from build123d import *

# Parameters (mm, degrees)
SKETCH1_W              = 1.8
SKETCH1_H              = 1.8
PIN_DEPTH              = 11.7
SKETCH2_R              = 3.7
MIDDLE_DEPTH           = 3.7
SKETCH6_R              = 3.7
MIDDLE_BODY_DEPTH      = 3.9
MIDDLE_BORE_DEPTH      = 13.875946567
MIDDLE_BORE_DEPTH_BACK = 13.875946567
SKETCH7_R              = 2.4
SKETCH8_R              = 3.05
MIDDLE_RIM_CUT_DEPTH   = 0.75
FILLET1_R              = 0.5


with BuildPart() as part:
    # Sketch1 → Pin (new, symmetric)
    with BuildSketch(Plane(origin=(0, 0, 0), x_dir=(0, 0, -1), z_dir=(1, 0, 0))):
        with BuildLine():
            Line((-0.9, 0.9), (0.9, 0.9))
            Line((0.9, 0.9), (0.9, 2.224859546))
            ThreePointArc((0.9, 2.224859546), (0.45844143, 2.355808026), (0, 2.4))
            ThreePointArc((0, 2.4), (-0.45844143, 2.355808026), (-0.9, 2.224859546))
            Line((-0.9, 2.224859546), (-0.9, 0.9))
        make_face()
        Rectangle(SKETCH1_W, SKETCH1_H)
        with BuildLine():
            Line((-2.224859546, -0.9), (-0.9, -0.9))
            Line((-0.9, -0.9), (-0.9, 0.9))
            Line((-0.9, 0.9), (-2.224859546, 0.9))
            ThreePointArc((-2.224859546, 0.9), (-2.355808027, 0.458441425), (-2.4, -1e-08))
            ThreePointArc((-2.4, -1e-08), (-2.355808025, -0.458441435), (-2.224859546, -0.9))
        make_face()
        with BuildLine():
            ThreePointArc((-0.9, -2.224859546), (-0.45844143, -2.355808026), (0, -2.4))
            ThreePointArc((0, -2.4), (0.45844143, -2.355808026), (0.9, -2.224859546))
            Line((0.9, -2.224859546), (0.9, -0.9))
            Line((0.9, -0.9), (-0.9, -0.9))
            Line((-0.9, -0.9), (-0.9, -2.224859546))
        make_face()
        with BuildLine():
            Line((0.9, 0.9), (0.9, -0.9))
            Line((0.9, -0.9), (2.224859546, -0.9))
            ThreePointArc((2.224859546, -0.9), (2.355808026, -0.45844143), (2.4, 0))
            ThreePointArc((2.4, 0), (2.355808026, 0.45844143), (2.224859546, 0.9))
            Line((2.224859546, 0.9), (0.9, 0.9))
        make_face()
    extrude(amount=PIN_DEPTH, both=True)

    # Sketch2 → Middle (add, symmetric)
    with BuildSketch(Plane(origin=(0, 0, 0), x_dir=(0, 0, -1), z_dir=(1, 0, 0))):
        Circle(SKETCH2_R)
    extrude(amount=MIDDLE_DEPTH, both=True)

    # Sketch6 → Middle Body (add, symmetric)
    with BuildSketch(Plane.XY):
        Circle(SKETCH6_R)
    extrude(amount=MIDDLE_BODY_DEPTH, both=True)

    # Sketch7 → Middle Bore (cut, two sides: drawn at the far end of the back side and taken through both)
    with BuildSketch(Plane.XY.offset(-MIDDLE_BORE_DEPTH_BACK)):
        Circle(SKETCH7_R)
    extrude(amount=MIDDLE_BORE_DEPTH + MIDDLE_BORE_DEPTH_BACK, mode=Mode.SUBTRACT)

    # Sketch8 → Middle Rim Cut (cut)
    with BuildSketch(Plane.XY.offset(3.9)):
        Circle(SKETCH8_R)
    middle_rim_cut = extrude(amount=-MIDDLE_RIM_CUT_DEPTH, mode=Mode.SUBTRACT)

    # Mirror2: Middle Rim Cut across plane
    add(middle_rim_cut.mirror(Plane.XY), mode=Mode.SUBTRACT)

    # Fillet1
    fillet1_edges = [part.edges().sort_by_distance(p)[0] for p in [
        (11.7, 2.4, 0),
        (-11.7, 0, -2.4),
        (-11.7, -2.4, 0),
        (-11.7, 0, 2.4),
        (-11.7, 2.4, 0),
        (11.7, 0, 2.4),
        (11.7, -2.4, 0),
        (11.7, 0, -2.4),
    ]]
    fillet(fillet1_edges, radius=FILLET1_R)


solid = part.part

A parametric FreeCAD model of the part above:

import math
import FreeCAD as App
import Part
import Sketcher

V = App.Vector
Q = App.Units.Quantity


def edges_at(feature, points):
    """Names of the edges that pass closest to the given points."""
    edges = feature.Shape.Edges
    near = lambda p: min(range(len(edges)), key=lambda i: edges[i].distToShape(Part.Vertex(*p))[0])
    return sorted({f"Edge{near(p) + 1}" for p in points})

doc = App.newDocument("Part")
body = doc.addObject("PartDesign::Body", "Body")

sketch1 = body.newObject("Sketcher::SketchObject", "Sketch")
sketch1.AttachmentSupport = (doc.getObject("YZ_Plane"), [""])
sketch1.MapMode = "FlatFace"
sketch1.addGeometry([
    Part.ArcOfCircle(Part.Circle(V(0, 0, 0), V(0, 0, 1), 2.4), math.radians(-22), math.radians(0)),
    Part.ArcOfCircle(Part.Circle(V(0, 0, 0), V(0, 0, 1), 2.4), math.radians(0), math.radians(22)),
    Part.LineSegment(V(2.2, 0.9, 0), V(0.9, 0.9, 0)),
    Part.LineSegment(V(0.9, 0.9, 0), V(0.9, 2.2, 0)),
    Part.ArcOfCircle(Part.Circle(V(0, 0, 0), V(0, 0, 1), 2.4), math.radians(68), math.radians(90)),
    Part.ArcOfCircle(Part.Circle(V(0, 0, 0), V(0, 0, 1), 2.4), math.radians(90), math.radians(112)),
    Part.LineSegment(V(-0.9, 2.2, 0), V(-0.9, 0.9, 0)),
    Part.LineSegment(V(-0.9, 0.9, 0), V(-2.2, 0.9, 0)),
    Part.ArcOfCircle(Part.Circle(V(0, 0, 0), V(0, 0, 1), 2.4), math.radians(158), math.radians(180)),
    Part.ArcOfCircle(Part.Circle(V(0, 0, 0), V(0, 0, 1), 2.4), math.radians(180), math.radians(202)),
    Part.LineSegment(V(-2.2, -0.9, 0), V(-0.9, -0.9, 0)),
    Part.LineSegment(V(-0.9, -0.9, 0), V(-0.9, -2.2, 0)),
    Part.ArcOfCircle(Part.Circle(V(0, 0, 0), V(0, 0, 1), 2.4), math.radians(-112), math.radians(-90)),
    Part.ArcOfCircle(Part.Circle(V(0, 0, 0), V(0, 0, 1), 2.4), math.radians(-90), math.radians(-68)),
    Part.LineSegment(V(0.9, -2.2, 0), V(0.9, -0.9, 0)),
    Part.LineSegment(V(0.9, -0.9, 0), V(2.2, -0.9, 0)),
], False)
sketch1.addConstraint([
    Sketcher.Constraint("Tangent", 0, 2, 1, 1),
    Sketcher.Constraint("Coincident", 1, 2, 2, 1),
    Sketcher.Constraint("Coincident", 2, 2, 3, 1),
    Sketcher.Constraint("Coincident", 3, 2, 4, 1),
    Sketcher.Constraint("Tangent", 4, 2, 5, 1),
    Sketcher.Constraint("Coincident", 5, 2, 6, 1),
    Sketcher.Constraint("Coincident", 6, 2, 7, 1),
    Sketcher.Constraint("Coincident", 7, 2, 8, 1),
    Sketcher.Constraint("Tangent", 8, 2, 9, 1),
    Sketcher.Constraint("Coincident", 9, 2, 10, 1),
    Sketcher.Constraint("Coincident", 10, 2, 11, 1),
    Sketcher.Constraint("Coincident", 11, 2, 12, 1),
    Sketcher.Constraint("Tangent", 12, 2, 13, 1),
    Sketcher.Constraint("Coincident", 13, 2, 14, 1),
    Sketcher.Constraint("Coincident", 14, 2, 15, 1),
    Sketcher.Constraint("Coincident", 15, 2, 0, 1),
    Sketcher.Constraint("Horizontal", 2),
    Sketcher.Constraint("Vertical", 3),
    Sketcher.Constraint("Vertical", 6),
    Sketcher.Constraint("Horizontal", 7),
    Sketcher.Constraint("Horizontal", 10),
    Sketcher.Constraint("Vertical", 11),
    Sketcher.Constraint("Vertical", 14),
    Sketcher.Constraint("Horizontal", 15),
    Sketcher.Constraint("Coincident", 0, 3, -1, 1),
    Sketcher.Constraint("Coincident", 4, 3, -1, 1),
    Sketcher.Constraint("Coincident", 8, 3, -1, 1),
    Sketcher.Constraint("Coincident", 12, 3, -1, 1),
    Sketcher.Constraint("Equal", 0, 1),
    Sketcher.Constraint("Equal", 1, 4),
    Sketcher.Constraint("Equal", 4, 5),
    Sketcher.Constraint("Equal", 5, 8),
    Sketcher.Constraint("Equal", 8, 9),
    Sketcher.Constraint("Equal", 9, 12),
    Sketcher.Constraint("Equal", 12, 13),
    Sketcher.Constraint("Symmetric", 2, 2, 10, 2, -1, 1),
    Sketcher.Constraint("Symmetric", 6, 2, 14, 2, -1, 1),
    Sketcher.Constraint("Symmetric", 2, 2, 6, 2, -2),
    Sketcher.Constraint("PointOnObject", 0, 2, -1),
    Sketcher.Constraint("PointOnObject", 4, 2, -2),
    Sketcher.Constraint("PointOnObject", 8, 2, -1),
    Sketcher.Constraint("PointOnObject", 12, 2, -2),
    Sketcher.Constraint("Equal", 15, 3),
    Sketcher.Constraint("Radius", 0, Q("2.4 mm")),
    Sketcher.Constraint("DistanceY", -1, 1, 1, 2, Q("0.9 mm")),
])
pad1 = body.newObject("PartDesign::Pad", "Pad")
pad1.Profile = sketch1
pad1.Length = 23.4
pad1.Midplane = True

sketch2 = body.newObject("Sketcher::SketchObject", "Sketch001")
sketch2.AttachmentSupport = (doc.getObject("YZ_Plane"), [""])
sketch2.MapMode = "FlatFace"
sketch2.addGeometry(Part.Circle(V(0, 0, 0), V(0, 0, 1), 3.7), False)
sketch2.addConstraint([
    Sketcher.Constraint("Coincident", 0, 3, -1, 1),
    Sketcher.Constraint("Diameter", 0, Q("7.4 mm")),
])
pad2 = body.newObject("PartDesign::Pad", "Pad001")
pad2.Profile = sketch2
pad2.Length = 7.4
pad2.Midplane = True

sketch3 = body.newObject("Sketcher::SketchObject", "Sketch002")
sketch3.AttachmentSupport = (doc.getObject("XY_Plane"), [""])
sketch3.MapMode = "FlatFace"
sketch3.addGeometry(Part.Circle(V(0, 0, 0), V(0, 0, 1), 3.7), False)
sketch3.addConstraint([
    Sketcher.Constraint("Coincident", 0, 3, -1, 1),
    Sketcher.Constraint("Diameter", 0, Q("7.4 mm")),
])
pad3 = body.newObject("PartDesign::Pad", "Pad002")
pad3.Profile = sketch3
pad3.Length = 7.8
pad3.Midplane = True

sketch4 = body.newObject("Sketcher::SketchObject", "Sketch003")
sketch4.AttachmentSupport = (doc.getObject("XY_Plane"), [""])
sketch4.MapMode = "FlatFace"
sketch4.addGeometry(Part.Circle(V(0, 0, 0), V(0, 0, 1), 2.4), False)
sketch4.addConstraint([
    Sketcher.Constraint("Coincident", 0, 3, -1, 1),
    Sketcher.Constraint("Diameter", 0, Q("4.8 mm")),
])
pocket1 = body.newObject("PartDesign::Pocket", "Pocket")
pocket1.Profile = sketch4
pocket1.Type = "ThroughAll"
pocket1.Midplane = True

sketch5 = body.newObject("Sketcher::SketchObject", "Sketch004")
sketch5.AttachmentSupport = (doc.getObject("XY_Plane"), [""])
sketch5.MapMode = "FlatFace"
sketch5.AttachmentOffset = App.Placement(V(0, 0, 3.9), App.Rotation())
sketch5.addGeometry(Part.Circle(V(0, 0, 0), V(0, 0, 1), 3), False)
sketch5.addConstraint([
    Sketcher.Constraint("Coincident", 0, 3, -1, 1),
    Sketcher.Constraint("Diameter", 0, Q("6.1 mm")),
])
pocket2 = body.newObject("PartDesign::Pocket", "Pocket001")
pocket2.Profile = sketch5
pocket2.Length = 0.75
doc.recompute()

mirrored = body.newObject("PartDesign::Mirrored", "Mirrored")
mirrored.Originals = [pocket2]
mirrored.MirrorPlane = (doc.getObject("XY_Plane"), [""])
body.Tip = mirrored
doc.recompute()

fillet = body.newObject("PartDesign::Fillet", "Fillet")
fillet.Base = (mirrored, edges_at(mirrored, [
    (11.7, 2.356, -0.458),
    (-11.7, -0.458, -2.356),
    (-11.7, -2.356, -0.458),
    (-11.7, 0.458, 2.356),
    (-11.7, 2.356, 0.458),
    (11.7, 0.458, 2.356),
    (11.7, -2.356, 0.458),
    (11.7, 0.458, -2.356),
]))
fillet.Radius = 0.5

doc.recompute()
